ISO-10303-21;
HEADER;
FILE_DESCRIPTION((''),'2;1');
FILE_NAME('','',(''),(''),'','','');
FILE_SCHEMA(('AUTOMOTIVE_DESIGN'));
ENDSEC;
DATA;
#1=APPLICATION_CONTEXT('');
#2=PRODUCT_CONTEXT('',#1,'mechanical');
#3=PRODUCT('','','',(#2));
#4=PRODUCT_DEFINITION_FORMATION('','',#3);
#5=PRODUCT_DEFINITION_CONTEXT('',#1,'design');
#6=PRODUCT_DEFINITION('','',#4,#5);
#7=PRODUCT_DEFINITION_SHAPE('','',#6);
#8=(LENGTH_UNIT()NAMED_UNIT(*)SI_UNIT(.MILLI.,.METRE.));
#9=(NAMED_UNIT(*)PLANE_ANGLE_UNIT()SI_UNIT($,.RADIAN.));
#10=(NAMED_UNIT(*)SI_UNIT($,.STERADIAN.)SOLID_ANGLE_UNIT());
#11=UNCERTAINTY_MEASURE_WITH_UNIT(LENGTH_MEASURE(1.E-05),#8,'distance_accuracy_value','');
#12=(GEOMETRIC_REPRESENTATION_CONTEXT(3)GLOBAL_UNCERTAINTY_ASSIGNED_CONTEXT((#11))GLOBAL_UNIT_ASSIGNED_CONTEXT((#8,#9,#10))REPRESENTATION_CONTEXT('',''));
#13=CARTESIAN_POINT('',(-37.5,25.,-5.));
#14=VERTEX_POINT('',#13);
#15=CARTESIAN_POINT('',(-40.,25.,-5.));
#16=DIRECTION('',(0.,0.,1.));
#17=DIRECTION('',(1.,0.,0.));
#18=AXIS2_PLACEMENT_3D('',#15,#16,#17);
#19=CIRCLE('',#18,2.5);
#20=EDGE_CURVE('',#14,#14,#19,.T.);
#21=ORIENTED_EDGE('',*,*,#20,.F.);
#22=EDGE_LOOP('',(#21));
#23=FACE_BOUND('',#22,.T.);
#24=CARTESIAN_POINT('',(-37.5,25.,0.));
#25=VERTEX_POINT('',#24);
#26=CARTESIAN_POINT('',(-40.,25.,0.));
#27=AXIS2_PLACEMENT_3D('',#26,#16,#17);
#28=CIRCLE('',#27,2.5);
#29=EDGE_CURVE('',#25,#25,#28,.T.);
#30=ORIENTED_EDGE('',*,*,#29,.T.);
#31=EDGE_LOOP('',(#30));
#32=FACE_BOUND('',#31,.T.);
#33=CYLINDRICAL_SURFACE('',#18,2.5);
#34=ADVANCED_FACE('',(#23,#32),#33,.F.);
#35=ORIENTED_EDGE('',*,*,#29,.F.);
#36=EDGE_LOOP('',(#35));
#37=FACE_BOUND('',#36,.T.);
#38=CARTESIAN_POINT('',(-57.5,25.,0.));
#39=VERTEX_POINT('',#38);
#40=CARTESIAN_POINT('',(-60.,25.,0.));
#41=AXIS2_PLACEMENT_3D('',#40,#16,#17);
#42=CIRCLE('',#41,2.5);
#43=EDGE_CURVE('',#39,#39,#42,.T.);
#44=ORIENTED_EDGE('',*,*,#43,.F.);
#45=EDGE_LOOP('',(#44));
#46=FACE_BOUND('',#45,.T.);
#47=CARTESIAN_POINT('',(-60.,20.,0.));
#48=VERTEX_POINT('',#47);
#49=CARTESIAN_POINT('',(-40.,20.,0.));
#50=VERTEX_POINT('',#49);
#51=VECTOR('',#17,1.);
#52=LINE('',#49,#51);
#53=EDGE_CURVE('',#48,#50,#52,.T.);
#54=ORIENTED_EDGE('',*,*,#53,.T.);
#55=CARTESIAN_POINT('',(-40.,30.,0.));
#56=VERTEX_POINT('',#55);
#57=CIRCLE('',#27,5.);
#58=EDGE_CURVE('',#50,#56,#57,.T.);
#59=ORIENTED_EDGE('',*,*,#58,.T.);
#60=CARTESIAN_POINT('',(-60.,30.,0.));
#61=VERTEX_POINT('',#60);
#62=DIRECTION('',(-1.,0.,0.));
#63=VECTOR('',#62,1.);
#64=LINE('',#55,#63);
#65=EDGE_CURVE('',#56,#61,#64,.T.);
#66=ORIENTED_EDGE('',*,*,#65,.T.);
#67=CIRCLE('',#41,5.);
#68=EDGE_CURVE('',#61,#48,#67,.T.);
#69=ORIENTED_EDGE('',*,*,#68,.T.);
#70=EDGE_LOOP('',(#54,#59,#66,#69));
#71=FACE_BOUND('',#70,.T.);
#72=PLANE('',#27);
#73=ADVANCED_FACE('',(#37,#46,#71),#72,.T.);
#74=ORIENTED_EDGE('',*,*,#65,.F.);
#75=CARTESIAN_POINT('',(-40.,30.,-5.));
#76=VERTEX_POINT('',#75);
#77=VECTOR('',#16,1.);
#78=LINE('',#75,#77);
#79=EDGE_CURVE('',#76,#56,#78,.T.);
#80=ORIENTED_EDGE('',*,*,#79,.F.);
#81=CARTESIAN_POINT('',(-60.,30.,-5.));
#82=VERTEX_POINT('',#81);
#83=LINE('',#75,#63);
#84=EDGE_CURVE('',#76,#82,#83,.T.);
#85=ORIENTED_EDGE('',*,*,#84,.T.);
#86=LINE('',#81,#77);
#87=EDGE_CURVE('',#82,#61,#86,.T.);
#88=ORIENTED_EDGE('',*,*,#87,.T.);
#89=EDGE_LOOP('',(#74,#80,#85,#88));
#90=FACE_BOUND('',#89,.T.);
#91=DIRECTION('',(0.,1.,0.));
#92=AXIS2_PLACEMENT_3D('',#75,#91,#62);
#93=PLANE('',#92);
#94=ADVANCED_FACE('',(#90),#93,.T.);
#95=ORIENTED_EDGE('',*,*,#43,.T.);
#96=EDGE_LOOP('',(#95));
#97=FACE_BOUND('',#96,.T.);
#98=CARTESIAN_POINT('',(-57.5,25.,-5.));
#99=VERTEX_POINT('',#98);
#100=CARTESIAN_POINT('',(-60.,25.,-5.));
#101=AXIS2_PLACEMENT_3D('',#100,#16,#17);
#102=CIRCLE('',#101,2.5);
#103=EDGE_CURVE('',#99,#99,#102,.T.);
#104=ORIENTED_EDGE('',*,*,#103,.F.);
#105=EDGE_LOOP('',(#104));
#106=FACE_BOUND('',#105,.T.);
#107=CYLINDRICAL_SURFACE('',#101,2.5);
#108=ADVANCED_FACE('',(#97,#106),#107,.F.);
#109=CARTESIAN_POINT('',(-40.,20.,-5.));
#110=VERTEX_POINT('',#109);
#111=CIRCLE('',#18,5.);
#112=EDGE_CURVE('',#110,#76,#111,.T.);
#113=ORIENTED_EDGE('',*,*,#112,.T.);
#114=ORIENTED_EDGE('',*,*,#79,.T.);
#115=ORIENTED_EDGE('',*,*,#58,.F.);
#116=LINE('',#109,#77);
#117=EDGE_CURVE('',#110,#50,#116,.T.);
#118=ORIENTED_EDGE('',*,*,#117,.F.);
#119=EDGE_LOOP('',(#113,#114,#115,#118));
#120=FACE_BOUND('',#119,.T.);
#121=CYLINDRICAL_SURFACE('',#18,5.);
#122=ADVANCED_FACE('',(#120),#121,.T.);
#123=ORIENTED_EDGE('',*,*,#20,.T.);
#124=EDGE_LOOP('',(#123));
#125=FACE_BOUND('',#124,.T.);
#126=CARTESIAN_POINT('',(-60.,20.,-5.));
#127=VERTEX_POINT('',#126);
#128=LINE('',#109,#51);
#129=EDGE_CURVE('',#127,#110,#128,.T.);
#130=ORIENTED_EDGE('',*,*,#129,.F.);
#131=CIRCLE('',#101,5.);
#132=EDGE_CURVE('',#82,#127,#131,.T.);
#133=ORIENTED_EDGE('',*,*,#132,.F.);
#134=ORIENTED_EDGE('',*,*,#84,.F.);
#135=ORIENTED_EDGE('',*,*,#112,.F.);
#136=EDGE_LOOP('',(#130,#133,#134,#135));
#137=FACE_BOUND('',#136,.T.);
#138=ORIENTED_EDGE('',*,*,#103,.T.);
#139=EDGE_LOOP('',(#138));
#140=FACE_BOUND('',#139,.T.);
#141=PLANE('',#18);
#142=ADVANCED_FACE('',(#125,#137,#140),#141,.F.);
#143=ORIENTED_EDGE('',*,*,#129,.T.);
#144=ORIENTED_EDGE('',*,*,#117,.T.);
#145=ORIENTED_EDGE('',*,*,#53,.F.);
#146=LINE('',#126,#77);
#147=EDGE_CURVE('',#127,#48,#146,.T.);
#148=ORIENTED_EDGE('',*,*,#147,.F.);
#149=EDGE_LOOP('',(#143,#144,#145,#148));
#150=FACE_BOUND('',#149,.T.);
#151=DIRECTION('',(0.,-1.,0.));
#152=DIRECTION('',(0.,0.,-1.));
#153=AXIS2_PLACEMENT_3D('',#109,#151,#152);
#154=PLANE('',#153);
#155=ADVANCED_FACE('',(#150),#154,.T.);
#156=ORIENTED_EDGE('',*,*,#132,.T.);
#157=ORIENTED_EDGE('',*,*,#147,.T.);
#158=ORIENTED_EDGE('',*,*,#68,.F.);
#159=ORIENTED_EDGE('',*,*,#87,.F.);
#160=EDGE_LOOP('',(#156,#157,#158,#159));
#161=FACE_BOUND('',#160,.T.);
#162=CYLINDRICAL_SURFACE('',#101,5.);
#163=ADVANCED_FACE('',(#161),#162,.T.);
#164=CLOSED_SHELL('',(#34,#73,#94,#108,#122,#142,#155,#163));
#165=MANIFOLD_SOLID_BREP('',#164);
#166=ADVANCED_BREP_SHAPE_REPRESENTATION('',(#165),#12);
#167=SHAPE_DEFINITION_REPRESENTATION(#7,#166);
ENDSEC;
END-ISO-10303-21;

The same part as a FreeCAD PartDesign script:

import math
import FreeCAD as App
import Part
import Sketcher
from FreeCAD import Vector

doc = App.newDocument("Part")
params = doc.addObject("Spreadsheet::Sheet", "Params")
for row, (alias, value) in enumerate([
    ("sketch1_diameter", "5 mm"),
    ("sketch1_radius", "5 mm"),
    ("sketch1_width", "20 mm"),
    ("pad1_length", "5 mm"),
], start=1):
    params.set(f"A{row}", alias)
    params.set(f"B{row}", "=" + value)
    params.setAlias(f"B{row}", alias)

body = doc.addObject("PartDesign::Body", "Body")

# Sketch on XY plane
sketch1 = doc.addObject("Sketcher::SketchObject", "Sketch")
body.addObject(sketch1)
sketch1.AttachmentSupport = (doc.XY_Plane, [""])
sketch1.MapMode = "FlatFace"
sketch1.addGeometry(Part.LineSegment(Vector(-60, 20, 0), Vector(-40, 20, 0)), False)
sketch1.addGeometry(Part.ArcOfCircle(Part.Circle(Vector(-40, 25, 0), Vector(0, 0, 1), 5), math.radians(-90), math.radians(90)), False)
sketch1.addGeometry(Part.LineSegment(Vector(-40, 30, 0), Vector(-60, 30, 0)), False)
sketch1.addGeometry(Part.ArcOfCircle(Part.Circle(Vector(-60, 25, 0), Vector(0, 0, 1), 5), math.radians(90), math.radians(270)), False)
sketch1.addGeometry(Part.Circle(Vector(-40, 25, 0), Vector(0, 0, 1), 2.5), False)
sketch1.addGeometry(Part.Circle(Vector(-60, 25, 0), Vector(0, 0, 1), 2.5), False)
sketch1.addConstraint(Sketcher.Constraint("Tangent", 0, 2, 1, 1))
sketch1.addConstraint(Sketcher.Constraint("Tangent", 1, 2, 2, 1))
sketch1.addConstraint(Sketcher.Constraint("Tangent", 2, 2, 3, 1))
sketch1.addConstraint(Sketcher.Constraint("Tangent", 3, 2, 0, 1))
sketch1.addConstraint(Sketcher.Constraint("Horizontal", 0))
sketch1.addConstraint(Sketcher.Constraint("Horizontal", 2))
sketch1.addConstraint(Sketcher.Constraint("Coincident", 4, 3, 1, 3))
sketch1.addConstraint(Sketcher.Constraint("Coincident", 5, 3, 3, 3))
sketch1.addConstraint(Sketcher.Constraint("Equal", 4, 5))
sketch1.addConstraint(Sketcher.Constraint("Diameter", 4, 5.0))
sketch1.addConstraint(Sketcher.Constraint("Radius", 1, 5.0))
sketch1.addConstraint(Sketcher.Constraint("DistanceX", 0, 1, 0, 2, 20.0))
sketch1.addConstraint(Sketcher.Constraint("DistanceX", 1, 3, -1, 1, 40.0))
sketch1.addConstraint(Sketcher.Constraint("DistanceY", -1, 1, 1, 3, 25.0))
sketch1.setExpression("Constraints[9]", "Params.sketch1_diameter")
sketch1.setExpression("Constraints[10]", "Params.sketch1_radius")
sketch1.setExpression("Constraints[11]", "Params.sketch1_width")
pad1 = doc.addObject("PartDesign::Pad", "Pad")
body.addObject(pad1)
pad1.Profile = sketch1
pad1.setExpression("Length", "Params.pad1_length")
pad1.Reversed = True

doc.recompute()
